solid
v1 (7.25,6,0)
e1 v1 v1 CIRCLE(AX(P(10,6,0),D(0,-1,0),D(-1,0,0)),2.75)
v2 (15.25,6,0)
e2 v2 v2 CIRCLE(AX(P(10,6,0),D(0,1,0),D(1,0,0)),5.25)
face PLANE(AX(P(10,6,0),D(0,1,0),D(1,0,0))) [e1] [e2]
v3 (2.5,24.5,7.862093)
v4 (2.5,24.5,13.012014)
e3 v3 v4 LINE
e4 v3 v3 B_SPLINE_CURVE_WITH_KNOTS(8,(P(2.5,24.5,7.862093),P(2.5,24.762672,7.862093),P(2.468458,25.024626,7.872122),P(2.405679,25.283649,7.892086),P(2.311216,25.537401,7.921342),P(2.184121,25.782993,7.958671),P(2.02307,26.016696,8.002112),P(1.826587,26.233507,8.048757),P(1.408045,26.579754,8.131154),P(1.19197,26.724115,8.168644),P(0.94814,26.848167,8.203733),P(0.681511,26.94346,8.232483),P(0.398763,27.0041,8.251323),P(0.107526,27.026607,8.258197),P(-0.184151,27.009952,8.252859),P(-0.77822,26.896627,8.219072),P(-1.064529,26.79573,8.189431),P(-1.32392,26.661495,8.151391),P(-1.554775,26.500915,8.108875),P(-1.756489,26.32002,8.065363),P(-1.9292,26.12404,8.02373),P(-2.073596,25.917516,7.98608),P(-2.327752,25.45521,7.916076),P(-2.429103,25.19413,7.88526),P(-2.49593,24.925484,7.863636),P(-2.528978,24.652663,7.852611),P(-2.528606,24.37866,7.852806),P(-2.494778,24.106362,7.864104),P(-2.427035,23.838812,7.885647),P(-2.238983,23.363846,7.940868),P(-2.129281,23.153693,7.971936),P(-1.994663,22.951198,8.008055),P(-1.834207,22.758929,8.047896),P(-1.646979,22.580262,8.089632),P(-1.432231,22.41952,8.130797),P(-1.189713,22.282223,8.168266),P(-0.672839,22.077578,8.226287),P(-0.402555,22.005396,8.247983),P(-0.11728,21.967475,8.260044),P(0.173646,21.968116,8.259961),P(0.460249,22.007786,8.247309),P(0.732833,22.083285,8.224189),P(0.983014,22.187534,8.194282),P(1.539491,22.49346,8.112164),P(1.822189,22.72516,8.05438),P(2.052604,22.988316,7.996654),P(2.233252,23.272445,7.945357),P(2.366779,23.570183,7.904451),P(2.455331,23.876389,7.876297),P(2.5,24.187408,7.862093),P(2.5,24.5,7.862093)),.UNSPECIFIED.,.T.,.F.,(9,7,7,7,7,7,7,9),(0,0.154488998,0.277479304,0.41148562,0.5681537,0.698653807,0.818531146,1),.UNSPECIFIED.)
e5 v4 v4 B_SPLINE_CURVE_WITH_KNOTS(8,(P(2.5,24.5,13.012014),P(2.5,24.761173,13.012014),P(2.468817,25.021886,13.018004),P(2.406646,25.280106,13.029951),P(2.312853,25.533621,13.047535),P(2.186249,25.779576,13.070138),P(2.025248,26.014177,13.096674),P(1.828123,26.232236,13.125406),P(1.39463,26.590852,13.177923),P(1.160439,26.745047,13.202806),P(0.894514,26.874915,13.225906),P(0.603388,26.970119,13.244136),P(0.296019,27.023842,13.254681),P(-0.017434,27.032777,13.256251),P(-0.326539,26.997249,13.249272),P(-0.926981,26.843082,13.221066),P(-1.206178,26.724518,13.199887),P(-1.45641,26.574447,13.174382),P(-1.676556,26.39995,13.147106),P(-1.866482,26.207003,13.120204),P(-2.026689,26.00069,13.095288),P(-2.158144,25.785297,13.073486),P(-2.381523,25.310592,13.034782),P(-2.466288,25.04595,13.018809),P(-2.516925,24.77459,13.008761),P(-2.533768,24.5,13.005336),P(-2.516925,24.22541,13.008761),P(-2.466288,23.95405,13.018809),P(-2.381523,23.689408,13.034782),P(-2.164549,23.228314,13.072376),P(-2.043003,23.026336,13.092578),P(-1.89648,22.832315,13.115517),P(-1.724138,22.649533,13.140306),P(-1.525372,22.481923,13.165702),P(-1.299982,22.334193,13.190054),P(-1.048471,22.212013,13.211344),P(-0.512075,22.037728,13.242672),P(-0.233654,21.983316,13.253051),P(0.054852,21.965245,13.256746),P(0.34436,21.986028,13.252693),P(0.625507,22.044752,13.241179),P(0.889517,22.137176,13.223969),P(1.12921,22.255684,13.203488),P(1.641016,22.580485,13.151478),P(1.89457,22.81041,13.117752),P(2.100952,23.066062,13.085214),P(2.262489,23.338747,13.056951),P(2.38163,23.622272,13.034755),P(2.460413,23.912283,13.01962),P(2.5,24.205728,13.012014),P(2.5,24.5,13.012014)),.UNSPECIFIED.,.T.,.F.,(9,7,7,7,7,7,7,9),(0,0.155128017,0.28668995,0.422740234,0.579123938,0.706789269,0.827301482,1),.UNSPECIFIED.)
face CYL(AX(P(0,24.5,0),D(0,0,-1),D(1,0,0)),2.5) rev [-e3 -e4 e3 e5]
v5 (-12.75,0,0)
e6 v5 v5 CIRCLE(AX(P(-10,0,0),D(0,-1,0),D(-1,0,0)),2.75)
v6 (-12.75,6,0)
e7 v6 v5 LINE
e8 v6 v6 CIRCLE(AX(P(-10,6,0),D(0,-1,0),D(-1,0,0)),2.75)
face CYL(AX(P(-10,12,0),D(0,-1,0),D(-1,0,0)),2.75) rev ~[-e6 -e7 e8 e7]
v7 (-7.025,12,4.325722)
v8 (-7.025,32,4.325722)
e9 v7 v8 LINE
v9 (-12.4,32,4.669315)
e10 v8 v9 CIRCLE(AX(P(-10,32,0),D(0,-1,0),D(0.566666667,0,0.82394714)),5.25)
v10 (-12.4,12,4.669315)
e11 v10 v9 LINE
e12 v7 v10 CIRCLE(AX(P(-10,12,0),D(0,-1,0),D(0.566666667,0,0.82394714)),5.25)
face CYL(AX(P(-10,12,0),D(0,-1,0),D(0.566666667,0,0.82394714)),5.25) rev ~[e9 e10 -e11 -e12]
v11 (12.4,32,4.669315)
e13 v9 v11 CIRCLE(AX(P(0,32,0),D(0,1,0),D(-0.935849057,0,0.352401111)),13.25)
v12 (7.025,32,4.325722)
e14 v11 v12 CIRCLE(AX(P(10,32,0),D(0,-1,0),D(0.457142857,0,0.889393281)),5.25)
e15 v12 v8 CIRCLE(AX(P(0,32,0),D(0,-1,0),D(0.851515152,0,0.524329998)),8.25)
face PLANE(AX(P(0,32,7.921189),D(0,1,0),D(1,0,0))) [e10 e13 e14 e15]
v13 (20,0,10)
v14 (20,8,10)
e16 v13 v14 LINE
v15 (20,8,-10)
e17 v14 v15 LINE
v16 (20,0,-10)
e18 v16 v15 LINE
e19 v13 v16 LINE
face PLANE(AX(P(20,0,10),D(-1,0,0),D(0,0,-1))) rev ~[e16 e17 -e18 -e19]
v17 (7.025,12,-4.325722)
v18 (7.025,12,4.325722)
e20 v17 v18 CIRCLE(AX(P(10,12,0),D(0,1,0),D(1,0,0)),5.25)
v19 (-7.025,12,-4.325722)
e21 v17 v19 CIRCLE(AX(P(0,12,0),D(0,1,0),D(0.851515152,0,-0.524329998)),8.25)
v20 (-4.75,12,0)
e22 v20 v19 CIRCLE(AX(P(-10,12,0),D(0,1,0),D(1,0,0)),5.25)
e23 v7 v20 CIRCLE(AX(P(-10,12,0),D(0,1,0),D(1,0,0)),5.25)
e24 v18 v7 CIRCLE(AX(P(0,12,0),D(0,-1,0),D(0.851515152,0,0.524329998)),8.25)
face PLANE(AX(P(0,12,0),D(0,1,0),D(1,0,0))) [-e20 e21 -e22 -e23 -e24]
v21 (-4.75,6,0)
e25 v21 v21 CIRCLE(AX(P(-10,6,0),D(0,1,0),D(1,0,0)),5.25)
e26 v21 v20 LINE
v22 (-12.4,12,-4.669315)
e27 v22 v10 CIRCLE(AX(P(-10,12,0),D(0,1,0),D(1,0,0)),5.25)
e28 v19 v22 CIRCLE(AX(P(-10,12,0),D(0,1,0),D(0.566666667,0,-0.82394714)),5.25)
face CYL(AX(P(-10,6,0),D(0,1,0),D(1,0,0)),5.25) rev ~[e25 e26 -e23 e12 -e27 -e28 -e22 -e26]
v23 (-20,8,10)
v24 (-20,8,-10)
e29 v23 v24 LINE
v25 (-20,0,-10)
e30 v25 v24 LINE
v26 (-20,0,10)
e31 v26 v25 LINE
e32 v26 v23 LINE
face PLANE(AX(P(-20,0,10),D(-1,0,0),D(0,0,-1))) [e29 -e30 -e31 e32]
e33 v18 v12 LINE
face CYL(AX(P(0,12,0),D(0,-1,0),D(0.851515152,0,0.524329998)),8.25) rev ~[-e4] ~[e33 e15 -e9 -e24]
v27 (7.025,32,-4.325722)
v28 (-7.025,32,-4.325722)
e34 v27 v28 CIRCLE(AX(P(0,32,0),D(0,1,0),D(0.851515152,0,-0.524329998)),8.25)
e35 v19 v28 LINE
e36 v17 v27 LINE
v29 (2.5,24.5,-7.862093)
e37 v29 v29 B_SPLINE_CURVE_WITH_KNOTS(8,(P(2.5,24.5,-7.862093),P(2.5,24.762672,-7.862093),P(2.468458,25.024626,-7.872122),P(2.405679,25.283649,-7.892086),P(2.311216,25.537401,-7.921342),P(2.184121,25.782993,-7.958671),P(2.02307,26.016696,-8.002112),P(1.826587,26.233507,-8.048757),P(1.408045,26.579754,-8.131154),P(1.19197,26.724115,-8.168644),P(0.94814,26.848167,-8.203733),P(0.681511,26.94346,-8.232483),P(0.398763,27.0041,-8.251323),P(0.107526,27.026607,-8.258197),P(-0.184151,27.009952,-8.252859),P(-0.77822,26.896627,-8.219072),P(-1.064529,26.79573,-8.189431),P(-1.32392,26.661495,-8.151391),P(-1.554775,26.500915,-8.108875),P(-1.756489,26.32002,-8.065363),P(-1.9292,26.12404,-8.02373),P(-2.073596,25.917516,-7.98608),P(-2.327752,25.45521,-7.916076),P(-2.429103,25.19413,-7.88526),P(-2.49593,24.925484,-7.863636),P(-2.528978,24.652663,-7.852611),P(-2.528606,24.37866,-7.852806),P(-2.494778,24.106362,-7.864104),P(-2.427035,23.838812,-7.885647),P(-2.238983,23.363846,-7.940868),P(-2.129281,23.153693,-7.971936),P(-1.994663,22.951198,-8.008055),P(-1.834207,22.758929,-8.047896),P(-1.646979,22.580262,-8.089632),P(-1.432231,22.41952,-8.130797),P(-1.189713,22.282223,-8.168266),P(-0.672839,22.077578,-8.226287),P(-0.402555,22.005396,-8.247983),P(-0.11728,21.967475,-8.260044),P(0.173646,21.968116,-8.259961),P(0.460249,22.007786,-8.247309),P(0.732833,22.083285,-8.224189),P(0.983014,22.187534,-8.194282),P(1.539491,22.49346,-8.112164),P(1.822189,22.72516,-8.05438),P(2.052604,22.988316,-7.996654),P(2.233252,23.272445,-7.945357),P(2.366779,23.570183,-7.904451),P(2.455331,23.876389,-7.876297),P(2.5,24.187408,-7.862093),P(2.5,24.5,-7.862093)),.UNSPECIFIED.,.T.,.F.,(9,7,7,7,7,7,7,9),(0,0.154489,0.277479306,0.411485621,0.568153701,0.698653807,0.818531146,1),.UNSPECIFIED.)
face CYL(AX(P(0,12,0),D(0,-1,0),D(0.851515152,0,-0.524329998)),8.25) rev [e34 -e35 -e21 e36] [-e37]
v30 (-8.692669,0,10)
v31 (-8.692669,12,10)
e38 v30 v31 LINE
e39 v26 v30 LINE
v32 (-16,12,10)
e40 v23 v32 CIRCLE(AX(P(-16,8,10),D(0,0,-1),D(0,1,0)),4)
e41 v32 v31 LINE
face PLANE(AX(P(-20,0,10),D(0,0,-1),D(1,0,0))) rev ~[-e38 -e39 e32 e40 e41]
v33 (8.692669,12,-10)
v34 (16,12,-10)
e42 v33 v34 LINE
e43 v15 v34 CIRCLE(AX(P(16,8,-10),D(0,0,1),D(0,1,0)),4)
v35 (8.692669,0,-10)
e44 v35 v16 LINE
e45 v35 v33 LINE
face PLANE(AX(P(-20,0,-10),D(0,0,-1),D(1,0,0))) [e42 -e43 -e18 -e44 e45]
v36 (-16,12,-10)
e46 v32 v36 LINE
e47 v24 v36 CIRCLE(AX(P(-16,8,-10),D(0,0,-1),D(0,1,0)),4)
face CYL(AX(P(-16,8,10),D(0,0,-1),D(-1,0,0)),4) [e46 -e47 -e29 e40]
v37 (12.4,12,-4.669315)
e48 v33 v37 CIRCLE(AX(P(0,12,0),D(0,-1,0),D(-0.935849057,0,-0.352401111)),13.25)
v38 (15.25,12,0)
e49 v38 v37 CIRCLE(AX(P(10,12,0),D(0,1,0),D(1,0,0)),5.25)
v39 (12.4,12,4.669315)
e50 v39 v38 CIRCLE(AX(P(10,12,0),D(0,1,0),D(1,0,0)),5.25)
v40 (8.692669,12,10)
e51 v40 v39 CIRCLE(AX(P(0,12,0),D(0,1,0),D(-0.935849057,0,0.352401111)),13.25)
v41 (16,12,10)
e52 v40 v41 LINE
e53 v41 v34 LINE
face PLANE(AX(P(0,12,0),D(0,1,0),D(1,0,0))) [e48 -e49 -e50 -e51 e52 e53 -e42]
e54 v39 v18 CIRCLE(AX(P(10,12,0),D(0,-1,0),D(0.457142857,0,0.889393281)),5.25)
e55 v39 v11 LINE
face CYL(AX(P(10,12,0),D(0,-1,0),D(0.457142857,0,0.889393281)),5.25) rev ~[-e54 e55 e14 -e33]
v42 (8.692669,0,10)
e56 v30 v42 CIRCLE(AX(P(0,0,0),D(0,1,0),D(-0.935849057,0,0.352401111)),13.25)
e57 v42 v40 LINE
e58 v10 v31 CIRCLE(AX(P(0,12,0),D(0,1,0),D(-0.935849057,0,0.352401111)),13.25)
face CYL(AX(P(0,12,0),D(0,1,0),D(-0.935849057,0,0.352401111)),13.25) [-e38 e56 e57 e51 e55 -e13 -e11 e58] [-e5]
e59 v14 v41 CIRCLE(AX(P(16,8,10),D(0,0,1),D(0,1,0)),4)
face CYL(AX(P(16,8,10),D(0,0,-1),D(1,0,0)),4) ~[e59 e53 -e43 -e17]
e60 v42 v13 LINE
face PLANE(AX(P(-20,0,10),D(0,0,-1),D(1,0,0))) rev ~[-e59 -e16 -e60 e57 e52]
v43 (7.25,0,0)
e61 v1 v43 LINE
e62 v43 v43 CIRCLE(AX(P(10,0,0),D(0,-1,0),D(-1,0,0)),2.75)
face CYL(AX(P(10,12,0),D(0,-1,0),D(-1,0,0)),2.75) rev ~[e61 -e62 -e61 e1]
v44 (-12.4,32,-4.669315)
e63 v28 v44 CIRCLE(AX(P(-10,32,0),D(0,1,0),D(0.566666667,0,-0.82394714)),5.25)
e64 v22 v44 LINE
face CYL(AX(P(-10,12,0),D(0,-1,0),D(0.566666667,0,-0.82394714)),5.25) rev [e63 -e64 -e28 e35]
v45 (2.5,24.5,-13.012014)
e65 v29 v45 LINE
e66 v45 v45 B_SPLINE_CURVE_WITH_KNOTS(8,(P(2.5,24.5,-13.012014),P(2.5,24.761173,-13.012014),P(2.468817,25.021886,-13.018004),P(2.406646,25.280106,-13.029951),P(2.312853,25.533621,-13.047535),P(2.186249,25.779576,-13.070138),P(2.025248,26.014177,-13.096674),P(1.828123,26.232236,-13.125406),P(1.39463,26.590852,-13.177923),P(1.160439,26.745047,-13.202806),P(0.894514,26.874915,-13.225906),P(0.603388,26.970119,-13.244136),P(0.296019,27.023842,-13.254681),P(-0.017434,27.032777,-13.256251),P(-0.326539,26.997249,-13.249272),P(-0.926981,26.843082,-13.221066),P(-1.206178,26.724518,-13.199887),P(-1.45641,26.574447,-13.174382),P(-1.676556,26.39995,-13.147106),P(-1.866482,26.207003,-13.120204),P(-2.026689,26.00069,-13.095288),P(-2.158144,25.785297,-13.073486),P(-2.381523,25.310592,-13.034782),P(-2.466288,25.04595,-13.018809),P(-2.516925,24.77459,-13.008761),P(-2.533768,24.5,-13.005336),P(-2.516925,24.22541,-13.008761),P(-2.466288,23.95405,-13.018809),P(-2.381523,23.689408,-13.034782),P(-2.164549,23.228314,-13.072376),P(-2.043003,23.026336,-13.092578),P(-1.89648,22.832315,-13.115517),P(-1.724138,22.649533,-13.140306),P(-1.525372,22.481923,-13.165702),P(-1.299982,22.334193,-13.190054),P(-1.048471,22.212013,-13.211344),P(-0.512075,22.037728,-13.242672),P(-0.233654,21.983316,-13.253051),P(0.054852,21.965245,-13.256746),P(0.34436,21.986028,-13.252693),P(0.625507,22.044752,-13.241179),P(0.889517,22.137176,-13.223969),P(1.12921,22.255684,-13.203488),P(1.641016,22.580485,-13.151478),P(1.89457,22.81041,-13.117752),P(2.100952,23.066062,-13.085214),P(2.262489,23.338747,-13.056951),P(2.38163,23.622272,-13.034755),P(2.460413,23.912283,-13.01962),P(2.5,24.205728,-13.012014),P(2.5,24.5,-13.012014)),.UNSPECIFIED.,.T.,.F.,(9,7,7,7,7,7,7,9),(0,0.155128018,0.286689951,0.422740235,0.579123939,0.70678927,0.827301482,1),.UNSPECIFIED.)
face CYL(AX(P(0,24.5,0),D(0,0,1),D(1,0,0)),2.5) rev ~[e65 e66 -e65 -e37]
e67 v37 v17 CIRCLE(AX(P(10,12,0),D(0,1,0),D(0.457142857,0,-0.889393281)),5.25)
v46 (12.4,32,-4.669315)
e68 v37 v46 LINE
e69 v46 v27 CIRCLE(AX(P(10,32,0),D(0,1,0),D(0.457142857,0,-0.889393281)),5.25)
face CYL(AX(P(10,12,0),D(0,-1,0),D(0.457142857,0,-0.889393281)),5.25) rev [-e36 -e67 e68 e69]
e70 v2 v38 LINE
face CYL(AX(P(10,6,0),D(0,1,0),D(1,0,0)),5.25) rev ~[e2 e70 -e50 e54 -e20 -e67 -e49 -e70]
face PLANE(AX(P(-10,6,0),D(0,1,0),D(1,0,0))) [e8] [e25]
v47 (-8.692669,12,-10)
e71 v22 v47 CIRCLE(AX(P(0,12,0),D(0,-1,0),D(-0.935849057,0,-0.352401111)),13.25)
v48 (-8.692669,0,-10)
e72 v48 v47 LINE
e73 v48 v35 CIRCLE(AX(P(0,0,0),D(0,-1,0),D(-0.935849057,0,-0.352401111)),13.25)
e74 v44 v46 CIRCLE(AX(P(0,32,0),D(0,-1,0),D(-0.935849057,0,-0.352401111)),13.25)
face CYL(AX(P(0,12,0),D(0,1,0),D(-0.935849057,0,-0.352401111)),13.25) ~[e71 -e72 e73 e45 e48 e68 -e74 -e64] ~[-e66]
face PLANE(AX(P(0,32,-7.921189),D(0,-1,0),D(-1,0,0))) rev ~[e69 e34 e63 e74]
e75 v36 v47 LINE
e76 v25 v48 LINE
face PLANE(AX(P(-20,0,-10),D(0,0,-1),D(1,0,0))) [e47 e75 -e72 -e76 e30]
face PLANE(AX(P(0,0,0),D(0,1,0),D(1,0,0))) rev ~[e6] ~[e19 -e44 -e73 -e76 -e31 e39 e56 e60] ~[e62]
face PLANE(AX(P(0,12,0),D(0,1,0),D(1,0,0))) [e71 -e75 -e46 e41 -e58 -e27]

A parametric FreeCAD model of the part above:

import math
import FreeCAD as App
import Part
import Sketcher

V = App.Vector
Q = App.Units.Quantity


def edges_at(feature, points):
    """Names of the edges that pass closest to the given points."""
    edges = feature.Shape.Edges
    near = lambda p: min(range(len(edges)), key=lambda i: edges[i].distToShape(Part.Vertex(*p))[0])
    return sorted({f"Edge{near(p) + 1}" for p in points})


def add_polygon(sketch, points):
    """Adds a closed chain of lines whose ends are joined by coincident constraints."""
    first, n = sketch.GeometryCount, len(points)
    for a, b in zip(points, points[1:] + points[:1]):
        sketch.addGeometry(Part.LineSegment(App.Vector(*a, 0), App.Vector(*b, 0)), False)
    for i in range(n):
        sketch.addConstraint(Sketcher.Constraint("Coincident", first + i, 2, first + (i + 1) % n, 1))

doc = App.newDocument("Part")
params = doc.addObject("Spreadsheet::Sheet", "Params")
for row, (alias, value) in enumerate([
    ("sketch1_width", "40 mm"),
    ("sketch1_height", "20 mm"),
    ("pad1_length", "12 mm"),
    ("sketch2_diameter", "5.5 mm"),
    ("hole_diameter", "5.5 mm"),
    ("hole_depth", "12 mm"),
    ("hole_cbore_diameter", "10.5 mm"),
    ("hole_cbore_depth", "6 mm"),
    ("sketch3_radius", "13.25 mm"),
    ("sketch3_radius2", "5.25 mm"),
    ("sketch3_radius3", "8.25 mm"),
    ("pad2_length", "20 mm"),
    ("pad2_length2", "12 mm"),
    ("sketch4_diameter", "5 mm"),
    ("fillet_radius", "4 mm"),
], start=1):
    params.set(f"A{row}", alias)
    params.set(f"B{row}", "=" + value)
    params.setAlias(f"B{row}", alias)

body = doc.addObject("PartDesign::Body", "Body")

sketch1 = body.newObject("Sketcher::SketchObject", "Sketch")
sketch1.AttachmentSupport = (doc.getObject("XZ_Plane"), [""])
sketch1.MapMode = "FlatFace"
add_polygon(sketch1, [(-20, -10), (-20, 10), (20, 10), (20, -10)])
sketch1.addConstraint([
    Sketcher.Constraint("Vertical", 0),
    Sketcher.Constraint("Horizontal", 1),
    Sketcher.Constraint("Vertical", 2),
    Sketcher.Constraint("Horizontal", 3),
    Sketcher.Constraint("Symmetric", 0, 2, 2, 2, -1, 1),
    Sketcher.Constraint("DistanceX", 1, 1, 1, 2, Q("40 mm")),
    Sketcher.Constraint("DistanceY", 0, 1, 0, 2, Q("20 mm")),
])
sketch1.setExpression("Constraints[9]", "Params.sketch1_width")
sketch1.setExpression("Constraints[10]", "Params.sketch1_height")
pad1 = body.newObject("PartDesign::Pad", "Pad")
pad1.Profile = sketch1
pad1.setExpression("Length", "Params.pad1_length")
pad1.Reversed = True

sketch2 = body.newObject("Sketcher::SketchObject", "Sketch001")
sketch2.AttachmentSupport = (doc.getObject("XZ_Plane"), [""])
sketch2.MapMode = "FlatFace"
sketch2.AttachmentOffset = App.Placement(V(0, 0, -12), App.Rotation())
sketch2.addGeometry([
    Part.Circle(V(10, 0, 0), V(0, 0, 1), 2.8),
    Part.Circle(V(-10, 0, 0), V(0, 0, 1), 2.8),
], False)
sketch2.addConstraint([
    Sketcher.Constraint("Equal", 0, 1),
    Sketcher.Constraint("Symmetric", 0, 3, 1, 3, -1, 1),
    Sketcher.Constraint("PointOnObject", 0, 3, -1),
    Sketcher.Constraint("Diameter", 0, Q("5.5 mm")),
    Sketcher.Constraint("DistanceX", -1, 1, 0, 3, Q("10 mm")),
])
sketch2.setExpression("Constraints[3]", "Params.sketch2_diameter")
doc.recompute()
hole = body.newObject("PartDesign::Hole", "Hole")
hole.Profile = sketch2
hole.ThreadType = "None"
hole.setExpression("Diameter", "Params.hole_diameter")
hole.DepthType = "Dimension"
hole.setExpression("Depth", "Params.hole_depth")
hole.DrillPoint = "Flat"
hole.HoleCutType = "Counterbore"
hole.setExpression("HoleCutDiameter", "Params.hole_cbore_diameter")
hole.setExpression("HoleCutDepth", "Params.hole_cbore_depth")
hole.Reversed = True

sketch3 = body.newObject("Sketcher::SketchObject", "Sketch002")
sketch3.AttachmentSupport = (doc.getObject("XZ_Plane"), [""])
sketch3.MapMode = "FlatFace"
sketch3.AttachmentOffset = App.Placement(V(0, 0, -12), App.Rotation())
sketch3.addGeometry([
    Part.ArcOfCircle(Part.Circle(V(0, 0, 0), V(0, 0, 1), 13), math.radians(21), math.radians(159)),
    Part.ArcOfCircle(Part.Circle(V(10, 0, 0), V(0, 0, 1), 5), math.radians(63), math.radians(125)),
    Part.ArcOfCircle(Part.Circle(V(0, 0, 0), V(0, 0, 1), 8), math.radians(32), math.radians(148)),
    Part.ArcOfCircle(Part.Circle(V(-10, 0, 0), V(0, 0, 1), 5), math.radians(55), math.radians(117)),
    Part.ArcOfCircle(Part.Circle(V(-10, 0, 0), V(0, 0, 1), 5), math.radians(-117), math.radians(-55)),
    Part.ArcOfCircle(Part.Circle(V(0, 0, 0), V(0, 0, 1), 8), math.radians(-148), math.radians(-32)),
    Part.ArcOfCircle(Part.Circle(V(10, 0, 0), V(0, 0, 1), 5), math.radians(-125), math.radians(-63)),
    Part.ArcOfCircle(Part.Circle(V(0, 0, 0), V(0, 0, 1), 13), math.radians(-159), math.radians(-21)),
], False)
sketch3.addConstraint([
    Sketcher.Constraint("Coincident", 0, 1, 1, 1),
    Sketcher.Constraint("Coincident", 1, 2, 2, 1),
    Sketcher.Constraint("Coincident", 2, 2, 3, 1),
    Sketcher.Constraint("Coincident", 3, 2, 0, 2),
    Sketcher.Constraint("Coincident", 4, 2, 5, 1),
    Sketcher.Constraint("Coincident", 5, 2, 6, 1),
    Sketcher.Constraint("Coincident", 6, 2, 7, 2),
    Sketcher.Constraint("Coincident", 7, 1, 4, 1),
    Sketcher.Constraint("Coincident", 0, 3, -1, 1),
    Sketcher.Constraint("Coincident", 2, 3, -1, 1),
    Sketcher.Constraint("Coincident", 5, 3, -1, 1),
    Sketcher.Constraint("Coincident", 7, 3, -1, 1),
    Sketcher.Constraint("Coincident", 4, 3, 3, 3),
    Sketcher.Constraint("Coincident", 6, 3, 1, 3),
    Sketcher.Constraint("Equal", 1, 3),
    Sketcher.Constraint("Equal", 3, 4),
    Sketcher.Constraint("Equal", 2, 5),
    Sketcher.Constraint("Equal", 4, 6),
    Sketcher.Constraint("Equal", 0, 7),
    Sketcher.Constraint("Symmetric", 1, 3, 3, 3, -1, 1),
    Sketcher.Constraint("PointOnObject", 1, 3, -1),
    Sketcher.Constraint("Radius", 0, Q("13.25 mm")),
    Sketcher.Constraint("Radius", 1, Q("5.25 mm")),
    Sketcher.Constraint("Radius", 2, Q("8.25 mm")),
    Sketcher.Constraint("DistanceX", -1, 1, 1, 3, Q("10 mm")),
])
sketch3.setExpression("Constraints[21]", "Params.sketch3_radius")
sketch3.setExpression("Constraints[22]", "Params.sketch3_radius2")
sketch3.setExpression("Constraints[23]", "Params.sketch3_radius3")
pad2 = body.newObject("PartDesign::Pad", "Pad001")
pad2.Profile = sketch3
pad2.Type = "TwoLengths"
pad2.setExpression("Length", "Params.pad2_length")
pad2.setExpression("Length2", "Params.pad2_length2")
pad2.Reversed = True

sketch4 = body.newObject("Sketcher::SketchObject", "Sketch003")
sketch4.AttachmentSupport = (doc.getObject("XY_Plane"), [""])
sketch4.MapMode = "FlatFace"
sketch4.addGeometry(Part.Circle(V(0, 24.5, 0), V(0, 0, 1), 2.5), False)
sketch4.addConstraint([
    Sketcher.Constraint("PointOnObject", 0, 3, -2),
    Sketcher.Constraint("Diameter", 0, Q("5 mm")),
    Sketcher.Constraint("DistanceY", -1, 1, 0, 3, Q("24.5 mm")),
])
sketch4.setExpression("Constraints[1]", "Params.sketch4_diameter")
pocket1 = body.newObject("PartDesign::Pocket", "Pocket")
pocket1.Profile = sketch4
pocket1.Type = "ThroughAll"
pocket1.Midplane = True
doc.recompute()

fillet = body.newObject("PartDesign::Fillet", "Fillet")
fillet.Base = (pocket1, edges_at(pocket1, [(-20, 12, 0), (20, 12, 0)]))
fillet.setExpression("Radius", "Params.fillet_radius")

doc.recompute()
